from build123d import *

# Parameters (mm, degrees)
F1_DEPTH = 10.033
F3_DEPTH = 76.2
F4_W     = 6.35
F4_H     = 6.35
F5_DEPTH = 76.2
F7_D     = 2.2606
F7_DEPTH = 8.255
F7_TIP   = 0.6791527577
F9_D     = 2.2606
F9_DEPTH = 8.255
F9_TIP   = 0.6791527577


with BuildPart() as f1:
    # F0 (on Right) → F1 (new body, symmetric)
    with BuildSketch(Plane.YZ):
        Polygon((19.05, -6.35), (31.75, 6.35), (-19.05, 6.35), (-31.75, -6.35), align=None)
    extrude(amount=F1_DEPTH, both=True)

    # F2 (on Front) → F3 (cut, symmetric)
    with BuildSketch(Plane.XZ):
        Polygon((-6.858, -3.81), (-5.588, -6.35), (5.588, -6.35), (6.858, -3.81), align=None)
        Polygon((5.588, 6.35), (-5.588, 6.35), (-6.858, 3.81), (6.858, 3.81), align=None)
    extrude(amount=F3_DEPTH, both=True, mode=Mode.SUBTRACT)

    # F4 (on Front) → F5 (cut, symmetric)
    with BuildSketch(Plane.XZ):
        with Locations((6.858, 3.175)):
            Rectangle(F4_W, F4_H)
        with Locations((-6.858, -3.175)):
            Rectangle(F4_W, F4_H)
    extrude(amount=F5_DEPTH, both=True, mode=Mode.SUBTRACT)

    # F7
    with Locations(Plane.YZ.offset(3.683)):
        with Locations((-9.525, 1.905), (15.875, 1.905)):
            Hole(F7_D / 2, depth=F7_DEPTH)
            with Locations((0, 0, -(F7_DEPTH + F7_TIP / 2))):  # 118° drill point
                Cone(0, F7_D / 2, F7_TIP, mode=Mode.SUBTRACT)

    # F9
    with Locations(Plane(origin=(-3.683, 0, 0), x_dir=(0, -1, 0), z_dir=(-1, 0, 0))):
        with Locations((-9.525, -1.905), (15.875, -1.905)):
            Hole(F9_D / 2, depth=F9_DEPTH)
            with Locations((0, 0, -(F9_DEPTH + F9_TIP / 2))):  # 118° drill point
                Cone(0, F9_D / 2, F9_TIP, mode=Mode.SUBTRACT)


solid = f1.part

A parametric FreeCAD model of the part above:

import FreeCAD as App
import Part
import Sketcher
from FreeCAD import Vector
Q = App.Units.Quantity

doc = App.newDocument("Part")
params = doc.addObject("Spreadsheet::Sheet", "Params")
for row, (alias, value) in enumerate([
    ("sketch1_width", "2 in"),
    ("pad1_length", "0.79 in"),
    ("sketch2_width", "0.44 in"),
    ("sketch2_width2", "0.54 in"),
    ("pocket1_length", "6 in"),
    ("sketch3_width", "0.25 in"),
    ("pocket2_length", "6 in"),
    ("sketch4_diameter", "0.089 in"),
    ("hole_diameter", "0.089 in"),
    ("hole_depth", "0.325 in"),
    ("sketch5_diameter", "0.089 in"),
    ("hole2_diameter", "0.089 in"),
    ("hole2_depth", "0.325 in"),
], start=1):
    params.set(f"A{row}", alias)
    params.set(f"B{row}", "=" + value)
    params.setAlias(f"B{row}", alias)

body = doc.addObject("PartDesign::Body", "Body")

# Sketch on YZ plane
sketch1 = body.newObject("Sketcher::SketchObject", "Sketch")
sketch1.AttachmentSupport = (doc.getObject("YZ_Plane"), [""])
sketch1.MapMode = "FlatFace"
sketch1.addGeometry([
    Part.LineSegment(Vector(19, -6, 0), Vector(32, 6, 0)),
    Part.LineSegment(Vector(32, 6, 0), Vector(-19, 6, 0)),
    Part.LineSegment(Vector(-19, 6, 0), Vector(-32, -6, 0)),
    Part.LineSegment(Vector(-32, -6, 0), Vector(19, -6, 0)),
], False)
sketch1.addConstraint([
    Sketcher.Constraint("Coincident", 0, 2, 1, 1),
    Sketcher.Constraint("Coincident", 1, 2, 2, 1),
    Sketcher.Constraint("Coincident", 2, 2, 3, 1),
    Sketcher.Constraint("Coincident", 3, 2, 0, 1),
    Sketcher.Constraint("Horizontal", 1),
    Sketcher.Constraint("Horizontal", 3),
    Sketcher.Constraint("Symmetric", 0, 2, 2, 2, -1, 1),
    Sketcher.Constraint("Parallel", 0, 2),
    Sketcher.Constraint("DistanceX", 1, 2, 1, 1, Q("2 in")),
    Sketcher.Constraint("Angle", 0, Q("45 deg")),
    Sketcher.Constraint("DistanceX", 2, 2, 1, 2, Q("0.5 in")),
])
sketch1.setExpression("Constraints[8]", "Params.sketch1_width")
pad1 = body.newObject("PartDesign::Pad", "Pad")
pad1.Profile = sketch1
pad1.setExpression("Length", "Params.pad1_length")
pad1.Midplane = True

# Sketch on XZ plane
sketch2 = body.newObject("Sketcher::SketchObject", "Sketch001")
sketch2.AttachmentSupport = (doc.getObject("XZ_Plane"), [""])
sketch2.MapMode = "FlatFace"
sketch2.addGeometry([
    Part.LineSegment(Vector(-6.9, -3.8, 0), Vector(-5.6, -6.3, 0)),  # 0
    Part.LineSegment(Vector(-5.6, -6.3, 0), Vector(5.6, -6.3, 0)),  # 1
    Part.LineSegment(Vector(5.6, -6.3, 0), Vector(6.9, -3.8, 0)),  # 2
    Part.LineSegment(Vector(6.9, -3.8, 0), Vector(-6.9, -3.8, 0)),  # 3
    Part.LineSegment(Vector(5.6, 6.3, 0), Vector(-5.6, 6.3, 0)),  # 4
    Part.LineSegment(Vector(-5.6, 6.3, 0), Vector(-6.9, 3.8, 0)),  # 5
    Part.LineSegment(Vector(-6.9, 3.8, 0), Vector(6.9, 3.8, 0)),  # 6
    Part.LineSegment(Vector(6.9, 3.8, 0), Vector(5.6, 6.3, 0)),  # 7
], False)
sketch2.addConstraint([
    Sketcher.Constraint("Coincident", 0, 2, 1, 1),
    Sketcher.Constraint("Coincident", 1, 2, 2, 1),
    Sketcher.Constraint("Coincident", 2, 2, 3, 1),
    Sketcher.Constraint("Coincident", 3, 2, 0, 1),
    Sketcher.Constraint("Coincident", 4, 2, 5, 1),
    Sketcher.Constraint("Coincident", 5, 2, 6, 1),
    Sketcher.Constraint("Coincident", 6, 2, 7, 1),
    Sketcher.Constraint("Coincident", 7, 2, 4, 1),
    Sketcher.Constraint("Horizontal", 1),
    Sketcher.Constraint("Horizontal", 3),
    Sketcher.Constraint("Horizontal", 4),
    Sketcher.Constraint("Horizontal", 6),
    Sketcher.Constraint("Symmetric", 1, 2, 4, 2, -1, 1),
    Sketcher.Constraint("Symmetric", 2, 2, 5, 2, -1, 1),
    Sketcher.Constraint("Parallel", 0, 7),
    Sketcher.Constraint("Vertical", 0, 2, 4, 2),
    Sketcher.Constraint("Vertical", 3, 2, 5, 2),
    Sketcher.Constraint("Vertical", 2, 2, 6, 2),
    Sketcher.Constraint("DistanceX", 1, 1, 1, 2, Q("0.44 in")),
    Sketcher.Constraint("DistanceX", 3, 2, 3, 1, Q("0.54 in")),
    Sketcher.Constraint("DistanceY", 1, 2, 2, 2, Q("0.1 in")),
    Sketcher.Constraint("DistanceY", 3, 2, 4, 2, Q("0.4 in")),
])
sketch2.setExpression("Constraints[18]", "Params.sketch2_width")
sketch2.setExpression("Constraints[19]", "Params.sketch2_width2")
pocket1 = body.newObject("PartDesign::Pocket", "Pocket")
pocket1.Profile = sketch2
pocket1.setExpression("Length", "Params.pocket1_length")
pocket1.Midplane = True

# Sketch on XZ plane
sketch3 = body.newObject("Sketcher::SketchObject", "Sketch002")
sketch3.AttachmentSupport = (doc.getObject("XZ_Plane"), [""])
sketch3.MapMode = "FlatFace"
sketch3.addGeometry([
    Part.LineSegment(Vector(4, 6, 0), Vector(4, 0, 0)),  # 0
    Part.LineSegment(Vector(4, 0, 0), Vector(10, 0, 0)),  # 1
    Part.LineSegment(Vector(10, 0, 0), Vector(10, 6, 0)),  # 2
    Part.LineSegment(Vector(10, 6, 0), Vector(4, 6, 0)),  # 3
    Part.LineSegment(Vector(-10, 0, 0), Vector(-10, -6, 0)),  # 4
    Part.LineSegment(Vector(-10, -6, 0), Vector(-4, -6, 0)),  # 5
    Part.LineSegment(Vector(-4, -6, 0), Vector(-4, 0, 0)),  # 6
    Part.LineSegment(Vector(-4, 0, 0), Vector(-10, 0, 0)),  # 7
], False)
sketch3.addConstraint([
    Sketcher.Constraint("Coincident", 0, 2, 1, 1),
    Sketcher.Constraint("Coincident", 1, 2, 2, 1),
    Sketcher.Constraint("Coincident", 2, 2, 3, 1),
    Sketcher.Constraint("Coincident", 3, 2, 0, 1),
    Sketcher.Constraint("Coincident", 4, 2, 5, 1),
    Sketcher.Constraint("Coincident", 5, 2, 6, 1),
    Sketcher.Constraint("Coincident", 6, 2, 7, 1),
    Sketcher.Constraint("Coincident", 7, 2, 4, 1),
    Sketcher.Constraint("Vertical", 0),
    Sketcher.Constraint("Horizontal", 1),
    Sketcher.Constraint("Vertical", 2),
    Sketcher.Constraint("Horizontal", 3),
    Sketcher.Constraint("Vertical", 4),
    Sketcher.Constraint("Horizontal", 5),
    Sketcher.Constraint("Vertical", 6),
    Sketcher.Constraint("Horizontal", 7),
    Sketcher.Constraint("Symmetric", 2, 2, 4, 2, -1, 1),
    Sketcher.Constraint("Symmetric", 0, 2, 6, 2, -1, 1),
    Sketcher.Constraint("PointOnObject", 0, 2, -1),
    Sketcher.Constraint("Equal", 7, 0),
    Sketcher.Constraint("DistanceX", 1, 1, 1, 2, Q("0.25 in")),
    Sketcher.Constraint("DistanceX", 4, 2, 0, 2, Q("0.54 in")),
])
sketch3.setExpression("Constraints[20]", "Params.sketch3_width")
pocket2 = body.newObject("PartDesign::Pocket", "Pocket001")
pocket2.Profile = sketch3
pocket2.setExpression("Length", "Params.pocket2_length")
pocket2.Midplane = True

# Sketch on YZ plane
sketch4 = body.newObject("Sketcher::SketchObject", "Sketch003")
sketch4.AttachmentSupport = (doc.getObject("YZ_Plane"), [""])
sketch4.MapMode = "FlatFace"
sketch4.AttachmentOffset = App.Placement(Vector(0, 0, 0.145 * 25.4), App.Rotation())
sketch4.addGeometry([
    Part.Circle(Vector(-9.5, 1.9, 0), Vector(0, 0, 1), 1.1),
    Part.Circle(Vector(15.9, 1.9, 0), Vector(0, 0, 1), 1.1),
], False)
sketch4.addConstraint([
    Sketcher.Constraint("Equal", 0, 1),
    Sketcher.Constraint("Horizontal", 0, 3, 1, 3),
    Sketcher.Constraint("Diameter", 0, Q("0.089 in")),
    Sketcher.Constraint("DistanceX", 0, 3, 1, 3, Q("1 in")),
    Sketcher.Constraint("DistanceX", 0, 3, -1, 1, Q("0.375 in")),
    Sketcher.Constraint("DistanceY", -1, 1, 0, 3, Q("0.075 in")),
])
sketch4.setExpression("Constraints[2]", "Params.sketch4_diameter")
doc.recompute()
hole = body.newObject("PartDesign::Hole", "Hole")
hole.Profile = sketch4
hole.ThreadType = "None"
hole.setExpression("Diameter", "Params.hole_diameter")
hole.DepthType = "Dimension"
hole.setExpression("Depth", "Params.hole_depth")
hole.DrillPoint = "Angled"
hole.DrillPointAngle = 118

# Sketch on YZ plane
sketch5 = body.newObject("Sketcher::SketchObject", "Sketch004")
sketch5.AttachmentSupport = (doc.getObject("YZ_Plane"), [""])
sketch5.MapMode = "FlatFace"
sketch5.AttachmentOffset = App.Placement(Vector(0, 0, -0.145 * 25.4), App.Rotation())
sketch5.addGeometry([
    Part.Circle(Vector(9.5, -1.9, 0), Vector(0, 0, 1), 1.1),
    Part.Circle(Vector(-15.9, -1.9, 0), Vector(0, 0, 1), 1.1),
], False)
sketch5.addConstraint([
    Sketcher.Constraint("Equal", 0, 1),
    Sketcher.Constraint("Horizontal", 0, 3, 1, 3),
    Sketcher.Constraint("Diameter", 0, Q("0.089 in")),
    Sketcher.Constraint("DistanceX", 1, 3, 0, 3, Q("1 in")),
    Sketcher.Constraint("DistanceX", -1, 1, 0, 3, Q("0.375 in")),
    Sketcher.Constraint("DistanceY", 0, 3, -1, 1, Q("0.075 in")),
])
sketch5.setExpression("Constraints[2]", "Params.sketch5_diameter")
doc.recompute()
hole2 = body.newObject("PartDesign::Hole", "Hole001")
hole2.Profile = sketch5
hole2.ThreadType = "None"
hole2.setExpression("Diameter", "Params.hole2_diameter")
hole2.DepthType = "Dimension"
hole2.setExpression("Depth", "Params.hole2_depth")
hole2.DrillPoint = "Angled"
hole2.DrillPointAngle = 118
hole2.Reversed = True

doc.recompute()
